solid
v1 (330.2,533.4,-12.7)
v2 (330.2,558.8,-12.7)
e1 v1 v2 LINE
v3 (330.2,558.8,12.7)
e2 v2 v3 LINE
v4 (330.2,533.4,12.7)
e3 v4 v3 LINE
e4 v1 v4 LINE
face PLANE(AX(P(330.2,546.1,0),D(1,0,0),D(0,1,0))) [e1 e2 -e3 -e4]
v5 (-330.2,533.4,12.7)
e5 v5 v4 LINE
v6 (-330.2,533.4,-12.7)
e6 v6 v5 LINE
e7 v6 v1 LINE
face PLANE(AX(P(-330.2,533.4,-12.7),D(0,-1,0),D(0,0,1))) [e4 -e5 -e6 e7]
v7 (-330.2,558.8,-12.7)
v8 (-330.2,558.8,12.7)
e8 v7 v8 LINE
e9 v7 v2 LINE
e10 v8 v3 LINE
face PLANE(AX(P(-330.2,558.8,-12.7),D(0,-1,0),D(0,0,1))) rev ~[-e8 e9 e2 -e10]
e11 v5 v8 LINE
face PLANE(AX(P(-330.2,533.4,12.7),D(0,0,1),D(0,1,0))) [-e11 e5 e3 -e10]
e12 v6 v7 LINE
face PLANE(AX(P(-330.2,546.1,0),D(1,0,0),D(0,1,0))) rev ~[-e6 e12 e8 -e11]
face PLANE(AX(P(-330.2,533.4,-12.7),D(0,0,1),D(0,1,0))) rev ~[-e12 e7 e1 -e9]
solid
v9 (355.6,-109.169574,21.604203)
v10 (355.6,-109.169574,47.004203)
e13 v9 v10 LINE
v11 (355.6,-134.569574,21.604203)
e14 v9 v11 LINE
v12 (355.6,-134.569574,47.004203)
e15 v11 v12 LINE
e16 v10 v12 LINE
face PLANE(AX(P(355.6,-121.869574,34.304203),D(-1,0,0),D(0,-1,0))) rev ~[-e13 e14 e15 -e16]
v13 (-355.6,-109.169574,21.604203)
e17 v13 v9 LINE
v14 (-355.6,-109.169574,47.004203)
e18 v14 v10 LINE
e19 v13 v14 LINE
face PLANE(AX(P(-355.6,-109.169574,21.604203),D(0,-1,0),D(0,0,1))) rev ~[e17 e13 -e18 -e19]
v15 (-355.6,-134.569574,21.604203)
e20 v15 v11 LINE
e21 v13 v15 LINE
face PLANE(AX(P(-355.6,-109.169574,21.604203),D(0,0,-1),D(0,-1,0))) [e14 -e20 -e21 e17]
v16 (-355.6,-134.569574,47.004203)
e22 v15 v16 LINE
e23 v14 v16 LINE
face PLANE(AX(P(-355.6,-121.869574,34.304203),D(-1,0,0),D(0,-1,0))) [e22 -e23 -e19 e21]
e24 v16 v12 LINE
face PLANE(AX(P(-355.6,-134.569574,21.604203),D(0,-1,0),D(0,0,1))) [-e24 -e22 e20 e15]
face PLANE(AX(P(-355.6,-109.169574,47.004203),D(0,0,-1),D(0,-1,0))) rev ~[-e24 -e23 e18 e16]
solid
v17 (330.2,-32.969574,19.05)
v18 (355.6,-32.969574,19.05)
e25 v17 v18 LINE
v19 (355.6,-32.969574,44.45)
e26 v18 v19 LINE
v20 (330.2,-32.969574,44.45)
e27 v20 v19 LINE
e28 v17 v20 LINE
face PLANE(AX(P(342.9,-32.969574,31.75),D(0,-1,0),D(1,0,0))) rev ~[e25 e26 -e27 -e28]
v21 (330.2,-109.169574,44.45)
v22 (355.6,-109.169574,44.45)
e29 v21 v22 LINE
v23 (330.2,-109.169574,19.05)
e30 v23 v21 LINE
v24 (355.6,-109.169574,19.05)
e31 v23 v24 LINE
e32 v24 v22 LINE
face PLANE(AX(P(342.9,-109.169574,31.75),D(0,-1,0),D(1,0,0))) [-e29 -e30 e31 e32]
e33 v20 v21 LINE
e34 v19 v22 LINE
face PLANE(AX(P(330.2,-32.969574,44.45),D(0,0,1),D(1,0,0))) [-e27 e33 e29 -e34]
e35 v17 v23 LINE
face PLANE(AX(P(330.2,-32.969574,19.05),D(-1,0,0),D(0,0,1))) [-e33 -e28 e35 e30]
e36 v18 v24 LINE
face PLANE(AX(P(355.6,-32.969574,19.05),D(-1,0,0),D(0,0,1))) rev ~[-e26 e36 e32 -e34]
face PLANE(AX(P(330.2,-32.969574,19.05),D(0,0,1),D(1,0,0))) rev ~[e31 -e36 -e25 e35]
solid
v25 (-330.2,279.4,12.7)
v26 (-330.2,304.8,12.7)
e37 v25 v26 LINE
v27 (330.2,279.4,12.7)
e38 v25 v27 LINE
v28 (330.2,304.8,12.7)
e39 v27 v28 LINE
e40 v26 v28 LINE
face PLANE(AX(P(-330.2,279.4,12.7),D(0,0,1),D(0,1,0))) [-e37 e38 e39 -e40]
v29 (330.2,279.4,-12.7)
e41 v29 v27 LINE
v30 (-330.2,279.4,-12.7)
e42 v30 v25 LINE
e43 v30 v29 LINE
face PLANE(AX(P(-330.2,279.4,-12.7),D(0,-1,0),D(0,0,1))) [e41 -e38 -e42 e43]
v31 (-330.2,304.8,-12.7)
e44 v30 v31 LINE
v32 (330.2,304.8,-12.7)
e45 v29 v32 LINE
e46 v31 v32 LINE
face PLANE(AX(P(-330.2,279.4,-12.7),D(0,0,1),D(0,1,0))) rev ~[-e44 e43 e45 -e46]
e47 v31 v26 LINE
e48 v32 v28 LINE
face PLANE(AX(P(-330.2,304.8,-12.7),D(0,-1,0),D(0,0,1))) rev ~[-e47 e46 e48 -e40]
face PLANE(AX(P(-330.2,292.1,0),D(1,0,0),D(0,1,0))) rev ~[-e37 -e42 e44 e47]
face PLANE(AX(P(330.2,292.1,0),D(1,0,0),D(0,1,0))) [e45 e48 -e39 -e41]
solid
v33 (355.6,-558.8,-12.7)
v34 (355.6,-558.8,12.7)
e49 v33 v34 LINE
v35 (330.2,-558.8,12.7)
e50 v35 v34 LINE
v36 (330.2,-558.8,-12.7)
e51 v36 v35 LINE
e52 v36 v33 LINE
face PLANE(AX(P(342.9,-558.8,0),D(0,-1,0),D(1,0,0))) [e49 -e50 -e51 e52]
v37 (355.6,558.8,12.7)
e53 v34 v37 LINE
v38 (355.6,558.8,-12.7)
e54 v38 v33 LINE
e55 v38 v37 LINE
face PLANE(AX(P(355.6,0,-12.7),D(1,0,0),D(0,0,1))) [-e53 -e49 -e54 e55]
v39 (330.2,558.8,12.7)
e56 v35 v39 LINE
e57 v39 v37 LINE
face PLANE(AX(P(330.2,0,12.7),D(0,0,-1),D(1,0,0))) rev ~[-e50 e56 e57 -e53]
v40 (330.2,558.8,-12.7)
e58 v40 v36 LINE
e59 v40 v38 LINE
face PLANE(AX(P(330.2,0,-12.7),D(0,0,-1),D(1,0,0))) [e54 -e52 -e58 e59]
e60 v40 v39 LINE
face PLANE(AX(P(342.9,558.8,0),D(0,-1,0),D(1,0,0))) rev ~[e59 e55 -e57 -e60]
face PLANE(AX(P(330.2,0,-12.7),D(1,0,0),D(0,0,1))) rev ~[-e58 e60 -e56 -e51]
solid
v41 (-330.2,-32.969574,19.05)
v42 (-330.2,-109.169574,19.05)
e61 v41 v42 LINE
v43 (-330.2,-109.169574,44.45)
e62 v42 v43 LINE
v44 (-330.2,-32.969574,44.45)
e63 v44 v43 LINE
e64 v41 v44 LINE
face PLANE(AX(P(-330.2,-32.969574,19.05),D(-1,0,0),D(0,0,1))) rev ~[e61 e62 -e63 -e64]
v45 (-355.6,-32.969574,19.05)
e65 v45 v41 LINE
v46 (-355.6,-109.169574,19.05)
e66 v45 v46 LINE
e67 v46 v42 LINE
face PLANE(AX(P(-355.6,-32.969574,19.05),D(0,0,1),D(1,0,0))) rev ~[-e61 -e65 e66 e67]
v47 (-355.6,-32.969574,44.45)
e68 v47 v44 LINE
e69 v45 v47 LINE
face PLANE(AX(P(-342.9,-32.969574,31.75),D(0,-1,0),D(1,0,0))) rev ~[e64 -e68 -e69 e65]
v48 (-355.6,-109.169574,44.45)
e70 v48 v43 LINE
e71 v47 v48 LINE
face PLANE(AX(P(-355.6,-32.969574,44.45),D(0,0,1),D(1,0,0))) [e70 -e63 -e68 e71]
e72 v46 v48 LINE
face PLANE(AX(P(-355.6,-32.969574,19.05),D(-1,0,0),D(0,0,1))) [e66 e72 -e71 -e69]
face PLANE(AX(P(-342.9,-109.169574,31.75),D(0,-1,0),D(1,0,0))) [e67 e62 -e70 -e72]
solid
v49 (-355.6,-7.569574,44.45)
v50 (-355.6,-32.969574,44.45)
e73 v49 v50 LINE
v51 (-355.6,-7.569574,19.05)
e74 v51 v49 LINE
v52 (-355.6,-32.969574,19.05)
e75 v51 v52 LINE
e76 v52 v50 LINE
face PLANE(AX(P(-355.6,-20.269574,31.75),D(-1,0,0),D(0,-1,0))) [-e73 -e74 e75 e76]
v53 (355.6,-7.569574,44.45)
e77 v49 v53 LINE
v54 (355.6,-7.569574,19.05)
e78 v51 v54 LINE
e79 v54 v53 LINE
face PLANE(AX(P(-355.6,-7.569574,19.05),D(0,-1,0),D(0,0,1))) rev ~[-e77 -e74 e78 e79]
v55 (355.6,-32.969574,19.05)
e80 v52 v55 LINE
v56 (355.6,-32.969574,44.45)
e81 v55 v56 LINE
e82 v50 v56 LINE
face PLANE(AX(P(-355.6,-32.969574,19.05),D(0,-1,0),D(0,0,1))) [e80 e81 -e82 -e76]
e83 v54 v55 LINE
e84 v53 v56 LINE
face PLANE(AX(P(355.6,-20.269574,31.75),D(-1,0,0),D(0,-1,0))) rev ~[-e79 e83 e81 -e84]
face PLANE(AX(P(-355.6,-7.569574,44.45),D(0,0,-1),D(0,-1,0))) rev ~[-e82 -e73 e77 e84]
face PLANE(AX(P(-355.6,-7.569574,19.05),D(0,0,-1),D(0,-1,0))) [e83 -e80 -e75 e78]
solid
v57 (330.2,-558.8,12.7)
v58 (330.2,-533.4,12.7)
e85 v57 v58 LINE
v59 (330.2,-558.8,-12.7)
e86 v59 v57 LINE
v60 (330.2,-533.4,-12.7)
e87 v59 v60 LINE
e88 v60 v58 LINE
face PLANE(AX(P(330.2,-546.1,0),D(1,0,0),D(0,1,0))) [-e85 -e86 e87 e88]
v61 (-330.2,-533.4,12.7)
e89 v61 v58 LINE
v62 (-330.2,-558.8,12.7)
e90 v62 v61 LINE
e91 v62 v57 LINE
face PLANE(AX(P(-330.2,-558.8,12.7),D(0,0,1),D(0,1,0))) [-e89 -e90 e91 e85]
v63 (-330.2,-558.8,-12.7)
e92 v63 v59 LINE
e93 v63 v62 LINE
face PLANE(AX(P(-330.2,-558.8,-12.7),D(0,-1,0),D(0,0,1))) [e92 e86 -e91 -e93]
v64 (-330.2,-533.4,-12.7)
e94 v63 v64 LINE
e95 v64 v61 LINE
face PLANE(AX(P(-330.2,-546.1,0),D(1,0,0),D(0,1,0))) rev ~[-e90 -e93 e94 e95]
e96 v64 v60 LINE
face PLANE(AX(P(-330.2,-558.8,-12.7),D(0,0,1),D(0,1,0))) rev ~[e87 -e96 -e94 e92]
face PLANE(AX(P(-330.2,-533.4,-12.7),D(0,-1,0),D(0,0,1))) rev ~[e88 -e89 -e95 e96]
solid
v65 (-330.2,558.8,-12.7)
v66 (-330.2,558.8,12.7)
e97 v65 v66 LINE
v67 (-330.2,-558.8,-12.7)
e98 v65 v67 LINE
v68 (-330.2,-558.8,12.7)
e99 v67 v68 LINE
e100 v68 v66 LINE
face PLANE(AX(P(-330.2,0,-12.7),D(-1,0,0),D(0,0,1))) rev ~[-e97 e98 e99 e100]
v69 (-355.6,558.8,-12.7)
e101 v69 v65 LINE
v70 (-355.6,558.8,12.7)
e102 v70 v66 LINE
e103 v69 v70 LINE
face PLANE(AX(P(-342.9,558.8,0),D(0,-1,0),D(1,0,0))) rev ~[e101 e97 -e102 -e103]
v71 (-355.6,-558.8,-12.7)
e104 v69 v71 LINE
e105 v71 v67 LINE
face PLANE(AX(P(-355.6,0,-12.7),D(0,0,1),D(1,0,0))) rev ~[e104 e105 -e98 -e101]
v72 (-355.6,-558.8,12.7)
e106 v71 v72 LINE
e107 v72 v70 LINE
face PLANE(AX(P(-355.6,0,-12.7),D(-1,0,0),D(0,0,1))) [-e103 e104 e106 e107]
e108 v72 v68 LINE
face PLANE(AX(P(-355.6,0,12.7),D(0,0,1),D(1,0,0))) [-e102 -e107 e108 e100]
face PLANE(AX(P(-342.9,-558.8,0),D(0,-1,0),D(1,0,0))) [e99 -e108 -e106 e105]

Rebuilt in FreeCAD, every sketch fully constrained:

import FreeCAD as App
import Part
import Sketcher
from FreeCAD import Vector
Q = App.Units.Quantity


def add_polygon(sketch, points):
    """Adds a closed chain of lines whose ends are joined by coincident constraints."""
    first, n = sketch.GeometryCount, len(points)
    for a, b in zip(points, points[1:] + points[:1]):
        sketch.addGeometry(Part.LineSegment(App.Vector(*a, 0), App.Vector(*b, 0)), False)
    for i in range(n):
        sketch.addConstraint(Sketcher.Constraint("Coincident", first + i, 2, first + (i + 1) % n, 1))

doc = App.newDocument("Part")
body = doc.addObject("PartDesign::Body", "Body")
body.AllowCompound = True

# Sketch on XZ plane
sketch1 = doc.addObject("Sketcher::SketchObject", "Sketch")
body.addObject(sketch1)
sketch1.AttachmentSupport = (doc.XZ_Plane, [""])
sketch1.MapMode = "FlatFace"
add_polygon(sketch1, [(-355.6, 12.7), (-355.6, -12.7), (-330.2, -12.7), (-330.2, 12.7)])  # lines 0-3
add_polygon(sketch1, [(330.2, 12.7), (330.2, -12.7), (355.6, -12.7), (355.6, 12.7)])  # lines 4-7
sketch1.addConstraint([
    Sketcher.Constraint("Vertical", 0),
    Sketcher.Constraint("Horizontal", 1),
    Sketcher.Constraint("Vertical", 2),
    Sketcher.Constraint("Horizontal", 3),
    Sketcher.Constraint("Vertical", 4),
    Sketcher.Constraint("Horizontal", 5),
    Sketcher.Constraint("Vertical", 6),
    Sketcher.Constraint("Horizontal", 7),
    Sketcher.Constraint("Symmetric", 2, 2, 4, 2, -1, 1),
    Sketcher.Constraint("Symmetric", 0, 2, 6, 2, -1, 1),
    Sketcher.Constraint("Horizontal", 1, 2, 4, 2),
    Sketcher.Constraint("Equal", 7, 0),
    Sketcher.Constraint("DistanceX", 1, 1, 1, 2, Q("1 in")),
    Sketcher.Constraint("DistanceX", 0, 2, -1, 1, Q("14 in")),
])
pad1 = doc.addObject("PartDesign::Pad", "Pad")
body.addObject(pad1)
pad1.Profile = sketch1
pad1.Length = Q("44 in")
pad1.Midplane = True
body2 = doc.addObject("PartDesign::Body", "Body001")
body2.AllowCompound = True

# Sketch on YZ plane
sketch2 = doc.addObject("Sketcher::SketchObject", "Sketch001")
body2.addObject(sketch2)
sketch2.AttachmentSupport = (doc.getObject("YZ_Plane001"), [""])
sketch2.MapMode = "FlatFace"
sketch2.AttachmentOffset = App.Placement(Vector(0, 0, -13 * 25.4), App.Rotation())
add_polygon(sketch2, [(533.4, 12.7), (533.4, -12.7), (558.8, -12.7), (558.8, 12.7)])  # lines 0-3
add_polygon(sketch2, [(279.4, 12.7), (279.4, -12.7), (304.8, -12.7), (304.8, 12.7)])  # lines 4-7
add_polygon(sketch2, [(-558.8, 12.7), (-558.8, -12.7), (-533.4, -12.7), (-533.4, 12.7)])  # lines 8-11
sketch2.addConstraint([
    Sketcher.Constraint("Vertical", 0),
    Sketcher.Constraint("Horizontal", 1),
    Sketcher.Constraint("Vertical", 2),
    Sketcher.Constraint("Horizontal", 3),
    Sketcher.Constraint("Vertical", 4),
    Sketcher.Constraint("Horizontal", 5),
    Sketcher.Constraint("Vertical", 6),
    Sketcher.Constraint("Horizontal", 7),
    Sketcher.Constraint("Vertical", 8),
    Sketcher.Constraint("Horizontal", 9),
    Sketcher.Constraint("Vertical", 10),
    Sketcher.Constraint("Horizontal", 11),
    Sketcher.Constraint("Symmetric", 2, 2, 8, 2, -1, 1),
    Sketcher.Constraint("Symmetric", 0, 2, 10, 2, -1, 1),
    Sketcher.Constraint("Horizontal", 1, 2, 4, 2),
    Sketcher.Constraint("Horizontal", 3, 2, 6, 2),
    Sketcher.Constraint("Horizontal", 5, 2, 8, 2),
    Sketcher.Constraint("Equal", 3, 5),
    Sketcher.Constraint("Equal", 11, 0),
    Sketcher.Constraint("DistanceX", 1, 1, 1, 2, Q("1 in")),
    Sketcher.Constraint("DistanceX", -1, 1, 0, 2, Q("21 in")),
    Sketcher.Constraint("DistanceX", -1, 1, 4, 2, Q("11 in")),
])
pad2 = doc.addObject("PartDesign::Pad", "Pad001")
body2.addObject(pad2)
pad2.Profile = sketch2
pad2.Length = Q("26 in")
body3 = doc.addObject("PartDesign::Body", "Body002")
body3.AllowCompound = True

# Sketch on YZ plane
sketch3 = doc.addObject("Sketcher::SketchObject", "Sketch002")
body3.addObject(sketch3)
sketch3.AttachmentSupport = (doc.getObject("YZ_Plane002"), [""])
sketch3.MapMode = "FlatFace"
sketch3.AttachmentOffset = App.Placement(Vector(0, 0, -14 * 25.4), App.Rotation())
add_polygon(sketch3, [(-7.569574, 44.45), (-7.569574, 19.05), (-32.969574, 19.05), (-32.969574, 44.45)])  # lines 0-3
add_polygon(sketch3, [(-109.169574, 47.004203), (-109.169574, 21.604203), (-134.569574, 21.604203), (-134.569574, 47.004203)])  # lines 4-7
sketch3.addConstraint([
    Sketcher.Constraint("Vertical", 0),
    Sketcher.Constraint("Horizontal", 1),
    Sketcher.Constraint("Vertical", 2),
    Sketcher.Constraint("Horizontal", 3),
    Sketcher.Constraint("Vertical", 4),
    Sketcher.Constraint("Horizontal", 5),
    Sketcher.Constraint("Vertical", 6),
    Sketcher.Constraint("Horizontal", 7),
    Sketcher.Constraint("Equal", 3, 5),
    Sketcher.Constraint("Equal", 7, 0),
    Sketcher.Constraint("Equal", 2, 4),
    Sketcher.Constraint("DistanceX", 1, 2, 1, 1, Q("1 in")),
    Sketcher.Constraint("DistanceX", 4, 2, 1, 2, Q("3 in")),
    Sketcher.Constraint("DistanceY", -1, 1, 0, 2, Q("0.75 in")),
    Sketcher.Constraint("DistanceX", 0, 2, -1, 1, Q("7.569574 mm")),
    Sketcher.Constraint("DistanceY", -1, 1, 4, 2, Q("21.604203 mm")),
])
pad3 = doc.addObject("PartDesign::Pad", "Pad002")
body3.addObject(pad3)
pad3.Profile = sketch3
pad3.Length = Q("28 in")
body4 = doc.addObject("PartDesign::Body", "Body003")
body4.AllowCompound = True

# Sketch on XZ plane
sketch4 = doc.addObject("Sketcher::SketchObject", "Sketch003")
body4.addObject(sketch4)
sketch4.AttachmentSupport = (doc.getObject("XZ_Plane003"), [""])
sketch4.MapMode = "FlatFace"
sketch4.AttachmentOffset = App.Placement(Vector(0, 0, 32.969574), App.Rotation())
add_polygon(sketch4, [(-355.6, 44.45), (-355.6, 19.05), (-330.2, 19.05), (-330.2, 44.45)])  # lines 0-3
add_polygon(sketch4, [(330.2, 44.45), (330.2, 19.05), (355.6, 19.05), (355.6, 44.45)])  # lines 4-7
sketch4.addConstraint([
    Sketcher.Constraint("Vertical", 0),
    Sketcher.Constraint("Horizontal", 1),
    Sketcher.Constraint("Vertical", 2),
    Sketcher.Constraint("Horizontal", 3),
    Sketcher.Constraint("Vertical", 4),
    Sketcher.Constraint("Horizontal", 5),
    Sketcher.Constraint("Vertical", 6),
    Sketcher.Constraint("Horizontal", 7),
    Sketcher.Constraint("Symmetric", 1, 2, 4, 2, -2),
    Sketcher.Constraint("Symmetric", 3, 2, 6, 2, -2),
    Sketcher.Constraint("Equal", 7, 0),
    Sketcher.Constraint("DistanceX", 1, 1, 1, 2, Q("1 in")),
    Sketcher.Constraint("DistanceX", 0, 2, -1, 1, Q("14 in")),
    Sketcher.Constraint("DistanceY", -1, 1, 0, 2, Q("0.75 in")),
])
pad4 = doc.addObject("PartDesign::Pad", "Pad003")
body4.addObject(pad4)
pad4.Profile = sketch4
pad4.Length = Q("3 in")

doc.recompute()
